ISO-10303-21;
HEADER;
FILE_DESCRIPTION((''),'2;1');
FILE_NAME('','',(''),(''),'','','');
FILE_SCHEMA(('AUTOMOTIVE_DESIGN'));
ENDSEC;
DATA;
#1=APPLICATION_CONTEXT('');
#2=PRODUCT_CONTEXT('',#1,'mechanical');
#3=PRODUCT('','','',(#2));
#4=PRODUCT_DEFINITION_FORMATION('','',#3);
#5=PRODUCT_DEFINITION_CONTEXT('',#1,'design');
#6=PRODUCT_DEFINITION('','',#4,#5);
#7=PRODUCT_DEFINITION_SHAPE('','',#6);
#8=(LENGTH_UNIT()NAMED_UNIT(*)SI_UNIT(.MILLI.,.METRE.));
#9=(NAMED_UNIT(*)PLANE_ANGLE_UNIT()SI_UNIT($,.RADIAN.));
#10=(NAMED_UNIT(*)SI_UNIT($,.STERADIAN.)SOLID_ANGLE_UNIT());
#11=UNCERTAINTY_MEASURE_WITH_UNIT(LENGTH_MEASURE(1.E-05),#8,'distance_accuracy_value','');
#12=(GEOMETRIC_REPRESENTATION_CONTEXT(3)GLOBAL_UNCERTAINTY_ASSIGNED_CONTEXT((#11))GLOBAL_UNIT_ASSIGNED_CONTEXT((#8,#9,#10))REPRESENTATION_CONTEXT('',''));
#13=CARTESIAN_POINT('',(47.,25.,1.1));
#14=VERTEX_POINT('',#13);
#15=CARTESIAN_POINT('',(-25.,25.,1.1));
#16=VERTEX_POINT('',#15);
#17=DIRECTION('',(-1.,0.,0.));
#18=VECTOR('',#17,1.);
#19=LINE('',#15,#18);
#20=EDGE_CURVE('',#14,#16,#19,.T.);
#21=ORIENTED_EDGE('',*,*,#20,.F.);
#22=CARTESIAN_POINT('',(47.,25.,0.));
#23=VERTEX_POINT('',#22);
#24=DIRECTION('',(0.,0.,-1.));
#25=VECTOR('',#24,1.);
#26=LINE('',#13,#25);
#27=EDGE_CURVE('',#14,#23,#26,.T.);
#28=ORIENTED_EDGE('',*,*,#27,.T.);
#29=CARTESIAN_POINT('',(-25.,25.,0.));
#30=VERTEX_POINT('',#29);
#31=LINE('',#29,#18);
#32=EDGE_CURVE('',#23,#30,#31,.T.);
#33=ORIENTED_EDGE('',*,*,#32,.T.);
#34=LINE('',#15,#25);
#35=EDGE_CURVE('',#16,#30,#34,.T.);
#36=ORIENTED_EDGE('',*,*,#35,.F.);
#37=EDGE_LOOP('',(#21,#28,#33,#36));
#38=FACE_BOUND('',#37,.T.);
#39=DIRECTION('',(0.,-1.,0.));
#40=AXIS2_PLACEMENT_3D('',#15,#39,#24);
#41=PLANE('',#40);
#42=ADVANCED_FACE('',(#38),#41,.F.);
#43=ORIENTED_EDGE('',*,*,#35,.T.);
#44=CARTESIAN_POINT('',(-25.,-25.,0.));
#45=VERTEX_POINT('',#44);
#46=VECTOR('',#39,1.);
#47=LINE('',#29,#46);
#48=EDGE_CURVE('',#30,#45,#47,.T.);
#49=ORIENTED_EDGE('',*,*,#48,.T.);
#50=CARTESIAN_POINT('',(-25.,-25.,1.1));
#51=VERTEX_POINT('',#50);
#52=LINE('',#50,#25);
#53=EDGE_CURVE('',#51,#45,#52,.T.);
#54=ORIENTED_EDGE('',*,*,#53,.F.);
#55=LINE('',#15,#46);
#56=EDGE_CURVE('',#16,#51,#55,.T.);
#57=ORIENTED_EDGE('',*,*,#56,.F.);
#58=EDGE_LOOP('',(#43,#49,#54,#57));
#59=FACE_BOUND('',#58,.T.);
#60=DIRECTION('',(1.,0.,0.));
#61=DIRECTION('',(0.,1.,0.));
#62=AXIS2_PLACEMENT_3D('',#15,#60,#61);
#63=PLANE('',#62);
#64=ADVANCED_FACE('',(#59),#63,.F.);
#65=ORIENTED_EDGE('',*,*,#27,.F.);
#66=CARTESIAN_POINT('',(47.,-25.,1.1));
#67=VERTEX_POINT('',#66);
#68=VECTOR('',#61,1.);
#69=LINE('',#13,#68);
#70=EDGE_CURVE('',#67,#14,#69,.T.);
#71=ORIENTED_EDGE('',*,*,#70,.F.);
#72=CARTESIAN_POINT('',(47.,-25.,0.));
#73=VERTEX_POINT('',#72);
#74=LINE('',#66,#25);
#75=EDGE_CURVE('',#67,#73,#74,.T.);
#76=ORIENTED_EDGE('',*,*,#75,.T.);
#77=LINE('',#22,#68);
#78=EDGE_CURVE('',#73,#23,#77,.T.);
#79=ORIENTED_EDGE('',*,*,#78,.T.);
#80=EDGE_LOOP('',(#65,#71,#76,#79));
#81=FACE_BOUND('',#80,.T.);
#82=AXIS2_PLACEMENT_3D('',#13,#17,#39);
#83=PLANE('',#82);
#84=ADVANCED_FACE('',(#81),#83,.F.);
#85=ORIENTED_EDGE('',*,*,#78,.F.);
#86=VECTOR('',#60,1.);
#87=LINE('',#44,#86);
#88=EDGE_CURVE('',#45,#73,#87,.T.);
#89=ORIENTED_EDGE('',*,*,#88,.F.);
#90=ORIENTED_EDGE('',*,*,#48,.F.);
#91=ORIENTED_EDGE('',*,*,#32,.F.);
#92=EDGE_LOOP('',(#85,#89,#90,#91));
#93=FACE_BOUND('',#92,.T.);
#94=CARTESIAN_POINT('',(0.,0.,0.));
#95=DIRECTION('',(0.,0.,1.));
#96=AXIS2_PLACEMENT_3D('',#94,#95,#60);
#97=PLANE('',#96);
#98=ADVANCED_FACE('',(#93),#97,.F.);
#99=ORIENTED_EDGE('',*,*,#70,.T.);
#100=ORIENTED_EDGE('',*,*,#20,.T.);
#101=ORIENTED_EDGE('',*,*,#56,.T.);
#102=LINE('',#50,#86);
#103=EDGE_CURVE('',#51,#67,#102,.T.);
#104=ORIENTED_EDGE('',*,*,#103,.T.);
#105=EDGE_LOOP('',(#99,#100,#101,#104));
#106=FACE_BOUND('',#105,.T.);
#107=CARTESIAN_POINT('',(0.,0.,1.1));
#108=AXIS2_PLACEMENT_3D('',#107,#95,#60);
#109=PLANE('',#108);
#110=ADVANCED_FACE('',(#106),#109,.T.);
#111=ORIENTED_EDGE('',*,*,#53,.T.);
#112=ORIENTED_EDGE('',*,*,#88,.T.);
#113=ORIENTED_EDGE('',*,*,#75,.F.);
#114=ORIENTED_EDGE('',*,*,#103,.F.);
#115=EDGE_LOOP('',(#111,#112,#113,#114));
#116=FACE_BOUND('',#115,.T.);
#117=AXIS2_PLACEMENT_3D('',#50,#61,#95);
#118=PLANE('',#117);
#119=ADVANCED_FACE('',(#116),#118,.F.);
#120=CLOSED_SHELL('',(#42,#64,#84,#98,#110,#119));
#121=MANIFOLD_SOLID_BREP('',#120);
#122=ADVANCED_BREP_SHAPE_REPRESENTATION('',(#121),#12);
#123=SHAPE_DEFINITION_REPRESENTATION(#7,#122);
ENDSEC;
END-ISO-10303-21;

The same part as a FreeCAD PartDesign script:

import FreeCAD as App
import Part
import Sketcher

V = App.Vector
Q = App.Units.Quantity

doc = App.newDocument("Part")
body = doc.addObject("PartDesign::Body", "Body")

# Sketch on XY plane
sketch1 = body.newObject("Sketcher::SketchObject", "Sketch")
sketch1.AttachmentSupport = (doc.getObject("XY_Plane"), [""])
sketch1.MapMode = "FlatFace"
sketch1.addGeometry(Part.LineSegment(V(-25, 25, 0), V(-25, -25, 0)), False)
sketch1.addGeometry(Part.LineSegment(V(-25, -25, 0), V(47, -25, 0)), False)
sketch1.addGeometry(Part.LineSegment(V(47, -25, 0), V(47, 25, 0)), False)
sketch1.addGeometry(Part.LineSegment(V(47, 25, 0), V(-25, 25, 0)), False)
sketch1.addConstraint(Sketcher.Constraint("Coincident", 0, 2, 1, 1))
sketch1.addConstraint(Sketcher.Constraint("Coincident", 1, 2, 2, 1))
sketch1.addConstraint(Sketcher.Constraint("Coincident", 2, 2, 3, 1))
sketch1.addConstraint(Sketcher.Constraint("Coincident", 3, 2, 0, 1))
sketch1.addConstraint(Sketcher.Constraint("Vertical", 0))
sketch1.addConstraint(Sketcher.Constraint("Horizontal", 1))
sketch1.addConstraint(Sketcher.Constraint("Vertical", 2))
sketch1.addConstraint(Sketcher.Constraint("Horizontal", 3))
sketch1.addConstraint(Sketcher.Constraint("DistanceX", 1, 1, 1, 2, Q("72 mm")))
sketch1.addConstraint(Sketcher.Constraint("DistanceY", 0, 2, 0, 1, Q("50 mm")))
sketch1.addConstraint(Sketcher.Constraint("DistanceX", 0, 2, -1, 1, Q("25 mm")))
sketch1.addConstraint(Sketcher.Constraint("DistanceY", 0, 2, -1, 1, Q("25 mm")))
pad1 = body.newObject("PartDesign::Pad", "Pad")
pad1.Profile = sketch1
pad1.Length = 1.1

doc.recompute()
